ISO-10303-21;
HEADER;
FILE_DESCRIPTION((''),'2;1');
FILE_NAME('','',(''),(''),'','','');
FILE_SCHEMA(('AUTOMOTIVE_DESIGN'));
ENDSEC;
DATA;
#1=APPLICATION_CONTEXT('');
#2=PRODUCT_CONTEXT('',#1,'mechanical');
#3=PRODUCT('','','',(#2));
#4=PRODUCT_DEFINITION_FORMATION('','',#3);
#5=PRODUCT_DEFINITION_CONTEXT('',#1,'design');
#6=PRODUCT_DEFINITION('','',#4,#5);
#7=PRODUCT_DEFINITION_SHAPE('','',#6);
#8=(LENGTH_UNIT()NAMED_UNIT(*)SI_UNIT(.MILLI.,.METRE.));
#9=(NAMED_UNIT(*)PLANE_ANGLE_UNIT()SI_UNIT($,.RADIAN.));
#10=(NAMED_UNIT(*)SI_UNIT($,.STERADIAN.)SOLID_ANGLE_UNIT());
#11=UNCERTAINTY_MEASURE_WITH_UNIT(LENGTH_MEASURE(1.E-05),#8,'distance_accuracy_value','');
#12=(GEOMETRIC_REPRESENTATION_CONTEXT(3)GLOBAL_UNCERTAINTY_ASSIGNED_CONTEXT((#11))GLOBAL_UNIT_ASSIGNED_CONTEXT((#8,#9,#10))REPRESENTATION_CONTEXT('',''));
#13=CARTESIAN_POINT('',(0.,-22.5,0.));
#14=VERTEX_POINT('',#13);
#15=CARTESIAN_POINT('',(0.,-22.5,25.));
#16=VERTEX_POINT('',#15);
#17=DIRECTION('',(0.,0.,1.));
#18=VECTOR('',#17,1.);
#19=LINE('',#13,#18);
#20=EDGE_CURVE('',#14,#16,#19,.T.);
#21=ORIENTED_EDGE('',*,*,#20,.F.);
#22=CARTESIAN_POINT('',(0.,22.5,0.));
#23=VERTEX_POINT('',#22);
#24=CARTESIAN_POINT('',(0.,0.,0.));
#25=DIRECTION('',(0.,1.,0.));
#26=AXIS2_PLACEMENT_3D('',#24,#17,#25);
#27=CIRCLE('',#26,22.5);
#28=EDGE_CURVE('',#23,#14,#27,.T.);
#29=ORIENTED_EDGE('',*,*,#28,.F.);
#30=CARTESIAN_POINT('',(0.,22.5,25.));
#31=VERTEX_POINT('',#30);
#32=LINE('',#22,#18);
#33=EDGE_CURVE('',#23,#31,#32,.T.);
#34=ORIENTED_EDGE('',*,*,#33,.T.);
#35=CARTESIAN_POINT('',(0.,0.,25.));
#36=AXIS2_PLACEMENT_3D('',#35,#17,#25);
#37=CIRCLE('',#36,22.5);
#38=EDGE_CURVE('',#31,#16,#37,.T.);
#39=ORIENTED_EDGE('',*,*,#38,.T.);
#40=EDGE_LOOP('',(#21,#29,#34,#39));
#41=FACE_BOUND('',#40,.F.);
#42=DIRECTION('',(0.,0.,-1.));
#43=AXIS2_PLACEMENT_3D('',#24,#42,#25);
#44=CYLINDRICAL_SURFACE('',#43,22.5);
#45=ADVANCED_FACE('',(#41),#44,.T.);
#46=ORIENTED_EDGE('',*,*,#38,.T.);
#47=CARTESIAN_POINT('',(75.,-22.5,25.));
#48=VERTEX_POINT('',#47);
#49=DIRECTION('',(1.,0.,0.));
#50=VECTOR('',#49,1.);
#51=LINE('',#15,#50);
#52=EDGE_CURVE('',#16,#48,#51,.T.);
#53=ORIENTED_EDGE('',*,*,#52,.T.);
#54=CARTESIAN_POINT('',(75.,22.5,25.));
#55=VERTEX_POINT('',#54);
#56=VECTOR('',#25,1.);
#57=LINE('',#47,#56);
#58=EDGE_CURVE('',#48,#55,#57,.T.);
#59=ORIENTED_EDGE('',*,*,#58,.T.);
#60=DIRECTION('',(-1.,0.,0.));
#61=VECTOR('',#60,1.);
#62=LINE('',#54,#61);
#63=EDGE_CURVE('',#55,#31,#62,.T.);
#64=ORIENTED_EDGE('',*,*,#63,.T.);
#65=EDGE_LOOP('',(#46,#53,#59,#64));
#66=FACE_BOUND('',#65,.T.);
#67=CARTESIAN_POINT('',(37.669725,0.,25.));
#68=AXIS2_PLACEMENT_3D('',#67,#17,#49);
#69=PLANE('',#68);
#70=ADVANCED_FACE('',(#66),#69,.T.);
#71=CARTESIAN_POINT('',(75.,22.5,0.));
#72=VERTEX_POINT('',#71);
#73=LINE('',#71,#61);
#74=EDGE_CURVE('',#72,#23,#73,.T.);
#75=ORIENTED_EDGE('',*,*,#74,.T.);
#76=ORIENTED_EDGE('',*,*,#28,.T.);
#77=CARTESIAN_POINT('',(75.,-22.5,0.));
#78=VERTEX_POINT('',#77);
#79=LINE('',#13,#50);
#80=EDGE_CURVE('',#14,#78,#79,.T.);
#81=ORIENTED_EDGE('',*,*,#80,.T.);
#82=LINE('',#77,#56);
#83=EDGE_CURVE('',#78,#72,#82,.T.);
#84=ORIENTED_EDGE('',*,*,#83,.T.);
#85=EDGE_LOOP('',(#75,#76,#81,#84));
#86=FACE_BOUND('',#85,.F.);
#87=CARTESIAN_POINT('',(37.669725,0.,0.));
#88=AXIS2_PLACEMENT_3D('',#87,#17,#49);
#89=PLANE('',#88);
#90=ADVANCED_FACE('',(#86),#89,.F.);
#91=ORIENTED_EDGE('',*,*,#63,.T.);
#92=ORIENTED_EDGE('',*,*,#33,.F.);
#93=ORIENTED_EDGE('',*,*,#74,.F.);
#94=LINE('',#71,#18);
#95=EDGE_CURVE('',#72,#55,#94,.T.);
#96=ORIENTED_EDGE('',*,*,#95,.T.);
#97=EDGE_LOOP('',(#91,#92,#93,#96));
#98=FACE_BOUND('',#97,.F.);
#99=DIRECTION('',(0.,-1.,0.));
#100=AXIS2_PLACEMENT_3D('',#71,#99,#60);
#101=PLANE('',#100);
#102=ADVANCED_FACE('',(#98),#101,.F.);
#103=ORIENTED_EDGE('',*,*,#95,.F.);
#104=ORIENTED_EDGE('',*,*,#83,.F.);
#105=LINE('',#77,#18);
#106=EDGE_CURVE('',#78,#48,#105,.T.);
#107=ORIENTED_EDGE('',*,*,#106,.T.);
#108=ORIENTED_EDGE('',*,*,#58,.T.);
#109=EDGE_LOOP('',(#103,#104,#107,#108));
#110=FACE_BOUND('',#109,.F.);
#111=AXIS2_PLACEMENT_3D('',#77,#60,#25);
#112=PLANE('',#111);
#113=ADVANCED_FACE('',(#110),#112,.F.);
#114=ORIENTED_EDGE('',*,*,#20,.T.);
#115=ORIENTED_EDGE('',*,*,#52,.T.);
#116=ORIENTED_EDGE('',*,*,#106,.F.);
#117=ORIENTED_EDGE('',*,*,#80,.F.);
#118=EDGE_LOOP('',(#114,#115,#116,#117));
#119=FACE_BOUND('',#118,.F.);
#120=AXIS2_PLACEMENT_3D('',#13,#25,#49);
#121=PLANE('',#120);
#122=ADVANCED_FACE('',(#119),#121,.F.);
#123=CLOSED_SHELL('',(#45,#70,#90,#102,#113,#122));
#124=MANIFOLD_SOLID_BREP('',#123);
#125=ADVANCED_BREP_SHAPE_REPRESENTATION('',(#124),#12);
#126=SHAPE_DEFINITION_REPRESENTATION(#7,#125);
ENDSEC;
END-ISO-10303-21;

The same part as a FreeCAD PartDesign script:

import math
import FreeCAD as App
import Part
import Sketcher
from FreeCAD import Vector

doc = App.newDocument("Part")
body = doc.addObject("PartDesign::Body", "Body")

# Sketch on XY plane
sketch1 = doc.addObject("Sketcher::SketchObject", "Sketch")
body.addObject(sketch1)
sketch1.AttachmentSupport = (doc.XY_Plane, [""])
sketch1.MapMode = "FlatFace"
sketch1.addGeometry(Part.LineSegment(Vector(0, -22, 0), Vector(75, -22, 0)), False)
sketch1.addGeometry(Part.LineSegment(Vector(75, -22, 0), Vector(75, 22, 0)), False)
sketch1.addGeometry(Part.LineSegment(Vector(75, 22, 0), Vector(0, 22, 0)), False)
sketch1.addGeometry(Part.ArcOfCircle(Part.Circle(Vector(0, 0, 0), Vector(0, 0, 1), 22), math.radians(90), math.radians(270)), False)
sketch1.addConstraint(Sketcher.Constraint("Coincident", 0, 2, 1, 1))
sketch1.addConstraint(Sketcher.Constraint("Coincident", 1, 2, 2, 1))
sketch1.addConstraint(Sketcher.Constraint("Tangent", 2, 2, 3, 1))
sketch1.addConstraint(Sketcher.Constraint("Tangent", 3, 2, 0, 1))
sketch1.addConstraint(Sketcher.Constraint("Horizontal", 0))
sketch1.addConstraint(Sketcher.Constraint("Vertical", 1))
sketch1.addConstraint(Sketcher.Constraint("Horizontal", 2))
sketch1.addConstraint(Sketcher.Constraint("Coincident", 3, 3, -1, 1))
sketch1.addConstraint(Sketcher.Constraint("Radius", 3, 22.5))
sketch1.addConstraint(Sketcher.Constraint("DistanceX", 0, 1, 0, 2, 75.0))
pad1 = doc.addObject("PartDesign::Pad", "Pad")
body.addObject(pad1)
pad1.Profile = sketch1
pad1.Length = 25

# Sketch on XY plane
sketch2 = doc.addObject("Sketcher::SketchObject", "Sketch001")
body.addObject(sketch2)
sketch2.AttachmentSupport = (doc.XY_Plane, [""])
sketch2.MapMode = "FlatFace"
sketch2.addGeometry(Part.ArcOfCircle(Part.Circle(Vector(0, 0, 0), Vector(0, 0, 1), 22), math.radians(-90), math.radians(0)), False)
sketch2.addGeometry(Part.ArcOfCircle(Part.Circle(Vector(0, 0, 0), Vector(0, 0, 1), 22), math.radians(0), math.radians(90)), False)
sketch2.addGeometry(Part.ArcOfCircle(Part.Circle(Vector(0, 0, 0), Vector(0, 0, 1), 22), math.radians(90), math.radians(270)), False)
sketch2.addConstraint(Sketcher.Constraint("Tangent", 0, 2, 1, 1))
sketch2.addConstraint(Sketcher.Constraint("Tangent", 1, 2, 2, 1))
sketch2.addConstraint(Sketcher.Constraint("Tangent", 2, 2, 0, 1))
sketch2.addConstraint(Sketcher.Constraint("Coincident", 0, 3, -1, 1))
sketch2.addConstraint(Sketcher.Constraint("PointOnObject", 0, 2, -1))
sketch2.addConstraint(Sketcher.Constraint("PointOnObject", 1, 2, -2))
sketch2.addConstraint(Sketcher.Constraint("PointOnObject", 2, 2, -2))
sketch2.addConstraint(Sketcher.Constraint("Radius", 0, 22.499999))
pad2 = doc.addObject("PartDesign::Pad", "Pad001")
body.addObject(pad2)
pad2.Profile = sketch2
pad2.Length = 25

doc.recompute()
